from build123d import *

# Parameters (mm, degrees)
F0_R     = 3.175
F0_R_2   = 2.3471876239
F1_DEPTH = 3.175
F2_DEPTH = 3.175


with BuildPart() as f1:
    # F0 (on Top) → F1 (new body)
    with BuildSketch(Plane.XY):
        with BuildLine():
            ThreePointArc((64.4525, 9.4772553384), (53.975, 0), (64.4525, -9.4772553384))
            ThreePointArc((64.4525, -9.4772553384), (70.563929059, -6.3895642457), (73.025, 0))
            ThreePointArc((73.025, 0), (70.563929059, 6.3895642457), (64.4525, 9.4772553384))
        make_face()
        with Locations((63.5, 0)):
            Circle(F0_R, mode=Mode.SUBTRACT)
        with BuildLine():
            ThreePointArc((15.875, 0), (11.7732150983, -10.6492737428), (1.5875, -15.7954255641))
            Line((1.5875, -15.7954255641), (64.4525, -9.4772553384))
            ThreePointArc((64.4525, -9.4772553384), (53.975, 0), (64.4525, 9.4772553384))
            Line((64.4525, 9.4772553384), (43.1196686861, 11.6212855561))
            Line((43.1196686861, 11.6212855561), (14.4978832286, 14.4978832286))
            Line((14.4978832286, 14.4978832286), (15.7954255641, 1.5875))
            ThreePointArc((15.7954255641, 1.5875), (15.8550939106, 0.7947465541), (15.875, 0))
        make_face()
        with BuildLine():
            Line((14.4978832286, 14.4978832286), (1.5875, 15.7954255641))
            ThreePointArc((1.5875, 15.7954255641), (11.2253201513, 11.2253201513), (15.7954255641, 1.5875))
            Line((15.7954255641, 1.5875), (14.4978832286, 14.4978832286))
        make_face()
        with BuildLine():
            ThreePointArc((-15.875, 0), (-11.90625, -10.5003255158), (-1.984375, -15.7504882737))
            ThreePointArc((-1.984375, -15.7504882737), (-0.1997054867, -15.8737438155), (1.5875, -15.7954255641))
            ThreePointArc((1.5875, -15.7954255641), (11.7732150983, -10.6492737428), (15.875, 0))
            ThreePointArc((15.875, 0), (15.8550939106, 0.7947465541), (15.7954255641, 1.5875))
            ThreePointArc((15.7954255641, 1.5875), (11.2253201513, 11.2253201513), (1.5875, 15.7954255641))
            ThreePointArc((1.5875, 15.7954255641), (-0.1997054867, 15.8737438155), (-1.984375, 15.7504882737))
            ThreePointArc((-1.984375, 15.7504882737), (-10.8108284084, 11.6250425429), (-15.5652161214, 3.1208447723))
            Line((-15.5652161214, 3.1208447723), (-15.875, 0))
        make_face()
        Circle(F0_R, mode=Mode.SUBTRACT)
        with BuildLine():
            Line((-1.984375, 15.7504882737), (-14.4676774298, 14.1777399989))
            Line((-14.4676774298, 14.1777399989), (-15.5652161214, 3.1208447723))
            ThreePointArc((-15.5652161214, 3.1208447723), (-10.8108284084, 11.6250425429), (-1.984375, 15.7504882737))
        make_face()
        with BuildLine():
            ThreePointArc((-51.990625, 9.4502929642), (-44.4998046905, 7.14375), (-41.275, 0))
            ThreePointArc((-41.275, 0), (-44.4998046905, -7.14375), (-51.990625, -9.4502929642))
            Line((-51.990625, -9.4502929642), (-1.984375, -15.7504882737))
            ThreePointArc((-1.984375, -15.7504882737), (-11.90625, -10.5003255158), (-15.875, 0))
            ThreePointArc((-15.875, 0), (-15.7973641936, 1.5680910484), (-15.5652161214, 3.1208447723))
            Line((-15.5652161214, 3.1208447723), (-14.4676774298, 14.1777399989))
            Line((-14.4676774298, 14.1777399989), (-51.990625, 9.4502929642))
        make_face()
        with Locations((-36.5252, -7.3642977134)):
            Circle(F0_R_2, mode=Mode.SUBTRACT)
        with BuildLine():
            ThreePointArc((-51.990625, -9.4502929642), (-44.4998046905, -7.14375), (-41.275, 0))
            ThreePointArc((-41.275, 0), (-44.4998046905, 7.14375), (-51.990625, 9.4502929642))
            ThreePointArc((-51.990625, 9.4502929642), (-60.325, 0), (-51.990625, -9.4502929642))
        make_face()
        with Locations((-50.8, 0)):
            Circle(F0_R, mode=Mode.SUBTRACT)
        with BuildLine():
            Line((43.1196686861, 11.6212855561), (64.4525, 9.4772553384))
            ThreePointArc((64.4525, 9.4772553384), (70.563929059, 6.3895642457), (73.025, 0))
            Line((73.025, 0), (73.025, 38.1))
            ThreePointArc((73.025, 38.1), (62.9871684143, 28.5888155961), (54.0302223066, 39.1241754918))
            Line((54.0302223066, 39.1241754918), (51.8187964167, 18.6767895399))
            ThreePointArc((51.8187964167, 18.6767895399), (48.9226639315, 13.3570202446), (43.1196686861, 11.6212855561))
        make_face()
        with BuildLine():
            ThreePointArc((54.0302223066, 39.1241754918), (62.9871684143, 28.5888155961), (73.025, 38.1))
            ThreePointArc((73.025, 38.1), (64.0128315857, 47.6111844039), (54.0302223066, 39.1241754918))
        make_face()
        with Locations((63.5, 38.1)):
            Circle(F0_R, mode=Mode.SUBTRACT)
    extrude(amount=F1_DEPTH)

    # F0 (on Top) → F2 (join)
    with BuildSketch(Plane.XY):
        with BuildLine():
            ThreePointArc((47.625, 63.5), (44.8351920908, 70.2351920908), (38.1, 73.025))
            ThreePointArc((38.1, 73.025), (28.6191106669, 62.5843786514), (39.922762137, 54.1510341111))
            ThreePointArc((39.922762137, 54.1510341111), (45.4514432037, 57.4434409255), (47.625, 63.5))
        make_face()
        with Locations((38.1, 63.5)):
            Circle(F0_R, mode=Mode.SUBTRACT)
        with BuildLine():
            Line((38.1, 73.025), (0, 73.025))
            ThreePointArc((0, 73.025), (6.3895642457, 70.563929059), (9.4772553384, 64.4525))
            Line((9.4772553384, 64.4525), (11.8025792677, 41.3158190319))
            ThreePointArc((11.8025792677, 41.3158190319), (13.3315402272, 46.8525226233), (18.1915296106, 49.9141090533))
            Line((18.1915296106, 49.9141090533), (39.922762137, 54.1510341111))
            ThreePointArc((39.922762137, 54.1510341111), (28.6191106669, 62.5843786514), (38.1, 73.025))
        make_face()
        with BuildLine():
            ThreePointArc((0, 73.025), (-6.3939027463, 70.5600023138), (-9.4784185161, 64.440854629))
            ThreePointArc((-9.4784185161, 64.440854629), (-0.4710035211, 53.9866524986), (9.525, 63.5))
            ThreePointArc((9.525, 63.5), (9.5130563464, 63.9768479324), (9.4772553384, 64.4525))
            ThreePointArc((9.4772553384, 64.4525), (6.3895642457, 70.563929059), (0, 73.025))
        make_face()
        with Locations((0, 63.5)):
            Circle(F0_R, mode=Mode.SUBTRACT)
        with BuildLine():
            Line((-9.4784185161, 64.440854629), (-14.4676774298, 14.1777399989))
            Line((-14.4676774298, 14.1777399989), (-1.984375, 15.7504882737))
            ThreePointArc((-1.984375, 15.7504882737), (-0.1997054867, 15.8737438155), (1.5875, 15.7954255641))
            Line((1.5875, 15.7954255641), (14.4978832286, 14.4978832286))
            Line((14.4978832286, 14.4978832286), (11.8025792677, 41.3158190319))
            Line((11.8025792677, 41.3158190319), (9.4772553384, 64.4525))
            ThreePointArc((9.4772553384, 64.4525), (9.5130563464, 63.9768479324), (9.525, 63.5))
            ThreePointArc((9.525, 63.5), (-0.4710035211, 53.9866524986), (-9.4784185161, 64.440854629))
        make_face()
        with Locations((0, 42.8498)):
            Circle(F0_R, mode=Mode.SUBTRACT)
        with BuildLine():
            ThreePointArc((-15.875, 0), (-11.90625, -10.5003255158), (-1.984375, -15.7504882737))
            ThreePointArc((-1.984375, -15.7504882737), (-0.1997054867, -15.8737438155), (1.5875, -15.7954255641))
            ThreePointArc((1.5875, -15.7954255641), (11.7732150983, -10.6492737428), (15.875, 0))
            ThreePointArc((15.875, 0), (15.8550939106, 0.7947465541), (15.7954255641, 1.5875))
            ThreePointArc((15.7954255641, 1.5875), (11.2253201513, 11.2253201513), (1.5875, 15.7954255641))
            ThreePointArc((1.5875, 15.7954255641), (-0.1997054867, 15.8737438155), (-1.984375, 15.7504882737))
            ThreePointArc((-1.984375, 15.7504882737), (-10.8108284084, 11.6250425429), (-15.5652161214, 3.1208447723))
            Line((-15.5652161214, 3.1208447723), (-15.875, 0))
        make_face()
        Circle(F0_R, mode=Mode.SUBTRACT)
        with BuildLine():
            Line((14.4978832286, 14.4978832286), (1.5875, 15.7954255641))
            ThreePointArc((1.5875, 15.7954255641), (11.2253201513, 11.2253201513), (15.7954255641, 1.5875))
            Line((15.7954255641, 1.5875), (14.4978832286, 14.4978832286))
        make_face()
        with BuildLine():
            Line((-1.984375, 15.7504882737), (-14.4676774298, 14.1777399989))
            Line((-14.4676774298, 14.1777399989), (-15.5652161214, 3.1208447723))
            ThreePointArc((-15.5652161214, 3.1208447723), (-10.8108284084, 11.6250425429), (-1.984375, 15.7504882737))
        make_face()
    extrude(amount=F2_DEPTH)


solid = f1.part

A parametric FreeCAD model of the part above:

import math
import FreeCAD as App
import Part
import Sketcher
from FreeCAD import Vector
Q = App.Units.Quantity

doc = App.newDocument("Part")
params = doc.addObject("Spreadsheet::Sheet", "Params")
for row, (alias, value) in enumerate([
    ("sketch1_diameter", "0.25 in"),
    ("sketch1_height", "1.5 in"),
    ("sketch1_radius", "0.375 in"),
    ("sketch1_radius2", "0.313 in"),
    ("sketch1_radius3", "0.625 in"),
    ("pad1_length", "0.125 in"),
    ("sketch2_diameter", "0.25 in"),
    ("sketch2_width", "1.5 in"),
    ("sketch2_radius", "0.375 in"),
    ("sketch2_radius2", "0.625 in"),
    ("sketch2_radius3", "0.313 in"),
    ("pad2_length", "0.125 in"),
], start=1):
    params.set(f"A{row}", alias)
    params.set(f"B{row}", "=" + value)
    params.setAlias(f"B{row}", alias)

body = doc.addObject("PartDesign::Body", "Body")

# Sketch on XY plane
sketch1 = body.newObject("Sketcher::SketchObject", "Sketch")
sketch1.AttachmentSupport = (doc.getObject("XY_Plane"), [""])
sketch1.MapMode = "FlatFace"
sketch1.addGeometry(Part.ArcOfCircle(Part.Circle(Vector(63.5, 0, 0), Vector(0, 0, 1), 9.5), math.radians(-84), math.radians(0)), False)
sketch1.addGeometry(Part.LineSegment(Vector(73, 0, 0), Vector(73, 38.1, 0)), False)
sketch1.addGeometry(Part.ArcOfCircle(Part.Circle(Vector(63.5, 38.1, 0), Vector(0, 0, 1), 9.5), math.radians(0), math.radians(174)), False)
sketch1.addGeometry(Part.LineSegment(Vector(54, 39.1, 0), Vector(51.8, 18.7, 0)), False)
sketch1.addGeometry(Part.ArcOfCircle(Part.Circle(Vector(43.9, 19.5, 0), Vector(0, 0, 1), 8), math.radians(-96), math.radians(-6)), False)
sketch1.addGeometry(Part.LineSegment(Vector(43.1, 11.6, 0), Vector(14.5, 14.5, 0)), False)
sketch1.addGeometry(Part.LineSegment(Vector(14.5, 14.5, 0), Vector(1.6, 15.8, 0)), False)
sketch1.addGeometry(Part.ArcOfCircle(Part.Circle(Vector(0, 0, 0), Vector(0, 0, 1), 15.9), math.radians(84.26), math.radians(97.18)), False)
sketch1.addGeometry(Part.LineSegment(Vector(-2, 15.8, 0), Vector(-14.5, 14.2, 0)), False)
sketch1.addGeometry(Part.LineSegment(Vector(-14.5, 14.2, 0), Vector(-52, 9.5, 0)), False)
sketch1.addGeometry(Part.ArcOfCircle(Part.Circle(Vector(-50.8, 0, 0), Vector(0, 0, 1), 9.5), math.radians(97), math.radians(263)), False)
sketch1.addGeometry(Part.LineSegment(Vector(-52, -9.5, 0), Vector(-2, -15.8, 0)), False)
sketch1.addGeometry(Part.ArcOfCircle(Part.Circle(Vector(0, 0, 0), Vector(0, 0, 1), 15.9), math.radians(-97.18), math.radians(-84.26)), False)
sketch1.addGeometry(Part.LineSegment(Vector(1.6, -15.8, 0), Vector(64.5, -9.5, 0)), False)
sketch1.addGeometry(Part.Circle(Vector(-36.5, -7.4, 0), Vector(0, 0, 1), 2.3), False)
sketch1.addGeometry(Part.Circle(Vector(-50.8, 0, 0), Vector(0, 0, 1), 3.2), False)
sketch1.addGeometry(Part.LineSegment(Vector(-15.6, 3.1, 0), Vector(-15.9, 0, 0)), False)
sketch1.addGeometry(Part.ArcOfCircle(Part.Circle(Vector(0, 0, 0), Vector(0, 0, 1), 15.9), math.radians(168.66), math.radians(180)), False)
sketch1.addGeometry(Part.Circle(Vector(0, 0, 0), Vector(0, 0, 1), 3.2), False)
sketch1.addGeometry(Part.Circle(Vector(63.5, 0, 0), Vector(0, 0, 1), 3.2), False)
sketch1.addGeometry(Part.Circle(Vector(63.5, 38.1, 0), Vector(0, 0, 1), 3.2), False)
sketch1.addConstraint(Sketcher.Constraint("Tangent", 0, 2, 1, 1))
sketch1.addConstraint(Sketcher.Constraint("Tangent", 1, 2, 2, 1))
sketch1.addConstraint(Sketcher.Constraint("Tangent", 2, 2, 3, 1))
sketch1.addConstraint(Sketcher.Constraint("Tangent", 3, 2, 4, 2))
sketch1.addConstraint(Sketcher.Constraint("Tangent", 4, 1, 5, 1))
sketch1.addConstraint(Sketcher.Constraint("Coincident", 5, 2, 6, 1))
sketch1.addConstraint(Sketcher.Constraint("Tangent", 6, 2, 7, 1))
sketch1.addConstraint(Sketcher.Constraint("Tangent", 7, 2, 8, 1))
sketch1.addConstraint(Sketcher.Constraint("Coincident", 8, 2, 9, 1))
sketch1.addConstraint(Sketcher.Constraint("Tangent", 9, 2, 10, 1))
sketch1.addConstraint(Sketcher.Constraint("Tangent", 10, 2, 11, 1))
sketch1.addConstraint(Sketcher.Constraint("Tangent", 11, 2, 12, 1))
sketch1.addConstraint(Sketcher.Constraint("Tangent", 12, 2, 13, 1))
sketch1.addConstraint(Sketcher.Constraint("Tangent", 13, 2, 0, 1))
sketch1.addConstraint(Sketcher.Constraint("Coincident", 16, 1, 17, 1))
sketch1.addConstraint(Sketcher.Constraint("Coincident", 17, 2, 16, 2))
sketch1.addConstraint(Sketcher.Constraint("Vertical", 1))
sketch1.addConstraint(Sketcher.Constraint("Coincident", 7, 3, -1, 1))
sketch1.addConstraint(Sketcher.Constraint("Coincident", 12, 3, -1, 1))
sketch1.addConstraint(Sketcher.Constraint("Coincident", 17, 3, -1, 1))
sketch1.addConstraint(Sketcher.Constraint("Coincident", 18, 3, -1, 1))
sketch1.addConstraint(Sketcher.Constraint("Coincident", 15, 3, 10, 3))
sketch1.addConstraint(Sketcher.Constraint("Coincident", 19, 3, 0, 3))
sketch1.addConstraint(Sketcher.Constraint("Coincident", 20, 3, 2, 3))
sketch1.addConstraint(Sketcher.Constraint("Equal", 0, 2))
sketch1.addConstraint(Sketcher.Constraint("Equal", 2, 10))
sketch1.addConstraint(Sketcher.Constraint("Equal", 7, 12))
sketch1.addConstraint(Sketcher.Constraint("Equal", 12, 17))
sketch1.addConstraint(Sketcher.Constraint("Equal", 15, 18))
sketch1.addConstraint(Sketcher.Constraint("Equal", 18, 19))
sketch1.addConstraint(Sketcher.Constraint("Equal", 19, 20))
sketch1.addConstraint(Sketcher.Constraint("Symmetric", 9, 2, 10, 2, -1))
sketch1.addConstraint(Sketcher.Constraint("PointOnObject", 0, 3, -1))
sketch1.addConstraint(Sketcher.Constraint("PointOnObject", 17, 2, -1))
sketch1.addConstraint(Sketcher.Constraint("Parallel", 5, 6))
sketch1.addConstraint(Sketcher.Constraint("Vertical", 6, 2, 12, 2))
sketch1.addConstraint(Sketcher.Constraint("Diameter", 15, Q("0.25 in")))
sketch1.addConstraint(Sketcher.Constraint("DistanceY", 1, 1, 1, 2, Q("1.5 in")))
sketch1.addConstraint(Sketcher.Constraint("DistanceX", 10, 3, -1, 1, Q("2 in")))
sketch1.addConstraint(Sketcher.Constraint("Radius", 0, Q("0.375 in")))
sketch1.addConstraint(Sketcher.Constraint("Radius", 4, Q("0.313 in")))
sketch1.addConstraint(Sketcher.Constraint("Radius", 7, Q("0.625 in")))
sketch1.addConstraint(Sketcher.Constraint("DistanceX", -1, 1, 0, 3, Q("2.5 in")))
sketch1.addConstraint(Sketcher.Constraint("DistanceX", 14, 3, -1, 1, Q("1.438 in")))
sketch1.addConstraint(Sketcher.Constraint("Diameter", 14, Q("4.694375 mm")))
sketch1.addConstraint(Sketcher.Constraint("DistanceX", -1, 1, 4, 3, Q("43.914689 mm")))
sketch1.addConstraint(Sketcher.Constraint("DistanceY", -1, 1, 8, 2, Q("14.17774 mm")))
sketch1.addConstraint(Sketcher.Constraint("DistanceY", 14, 3, 9, 2, Q("16.814591 mm")))
sketch1.addConstraint(Sketcher.Constraint("DistanceX", 16, 1, 8, 2, Q("1.097539 mm")))
sketch1.addConstraint(Sketcher.Constraint("Distance", 5, Q("28.765977 mm")))
sketch1.setExpression("Constraints[36]", "Params.sketch1_diameter")
sketch1.setExpression("Constraints[37]", "Params.sketch1_height")
sketch1.setExpression("Constraints[39]", "Params.sketch1_radius")
sketch1.setExpression("Constraints[40]", "Params.sketch1_radius2")
sketch1.setExpression("Constraints[41]", "Params.sketch1_radius3")
pad1 = body.newObject("PartDesign::Pad", "Pad")
pad1.Profile = sketch1
pad1.setExpression("Length", "Params.pad1_length")

# Sketch on XY plane
sketch2 = body.newObject("Sketcher::SketchObject", "Sketch001")
sketch2.AttachmentSupport = (doc.getObject("XY_Plane"), [""])
sketch2.MapMode = "FlatFace"
sketch2.addGeometry(Part.ArcOfCircle(Part.Circle(Vector(38.1, 63.5, 0), Vector(0, 0, 1), 9.5), math.radians(0), math.radians(90)), False)
sketch2.addGeometry(Part.LineSegment(Vector(38.1, 73, 0), Vector(0, 73, 0)), False)
sketch2.addGeometry(Part.ArcOfCircle(Part.Circle(Vector(0, 63.5, 0), Vector(0, 0, 1), 9.5), math.radians(90), math.radians(174)), False)
sketch2.addGeometry(Part.LineSegment(Vector(-9.5, 64.4, 0), Vector(-15.6, 3.1, 0)), False)
sketch2.addGeometry(Part.LineSegment(Vector(-15.6, 3.1, 0), Vector(-15.9, 0, 0)), False)
sketch2.addGeometry(Part.ArcOfCircle(Part.Circle(Vector(0, 0, 0), Vector(0, 0, 1), 15.9), math.radians(180), math.radians(263)), False)
sketch2.addGeometry(Part.ArcOfCircle(Part.Circle(Vector(0, 0, 0), Vector(0, 0, 1), 15.9), math.radians(-97.18), math.radians(-84.26)), False)
sketch2.addGeometry(Part.ArcOfCircle(Part.Circle(Vector(0, 0, 0), Vector(0, 0, 1), 15.9), math.radians(-84), math.radians(0)), False)
sketch2.addGeometry(Part.ArcOfCircle(Part.Circle(Vector(0, 0, 0), Vector(0, 0, 1), 15.9), math.radians(0), math.radians(5.74)), False)
sketch2.addGeometry(Part.LineSegment(Vector(15.8, 1.6, 0), Vector(14.5, 14.5, 0)), False)
sketch2.addGeometry(Part.LineSegment(Vector(14.5, 14.5, 0), Vector(11.8, 41.3, 0)), False)
sketch2.addGeometry(Part.ArcOfCircle(Part.Circle(Vector(19.7, 42.1, 0), Vector(0, 0, 1), 8), math.radians(101), math.radians(186)), False)
sketch2.addGeometry(Part.LineSegment(Vector(18.2, 49.9, 0), Vector(39.9, 54.2, 0)), False)
sketch2.addGeometry(Part.ArcOfCircle(Part.Circle(Vector(38.1, 63.5, 0), Vector(0, 0, 1), 9.5), math.radians(-79), math.radians(0)), False)
sketch2.addGeometry(Part.Circle(Vector(0, 0, 0), Vector(0, 0, 1), 3.2), False)
sketch2.addGeometry(Part.Circle(Vector(0, 42.8, 0), Vector(0, 0, 1), 3.2), False)
sketch2.addGeometry(Part.Circle(Vector(0, 63.5, 0), Vector(0, 0, 1), 3.2), False)
sketch2.addGeometry(Part.Circle(Vector(38.1, 63.5, 0), Vector(0, 0, 1), 3.2), False)
sketch2.addConstraint(Sketcher.Constraint("Tangent", 0, 2, 1, 1))
sketch2.addConstraint(Sketcher.Constraint("Tangent", 1, 2, 2, 1))
sketch2.addConstraint(Sketcher.Constraint("Tangent", 2, 2, 3, 1))
sketch2.addConstraint(Sketcher.Constraint("Coincident", 3, 2, 4, 1))
sketch2.addConstraint(Sketcher.Constraint("Coincident", 4, 2, 5, 1))
sketch2.addConstraint(Sketcher.Constraint("Tangent", 5, 2, 6, 1))
sketch2.addConstraint(Sketcher.Constraint("Tangent", 6, 2, 7, 1))
sketch2.addConstraint(Sketcher.Constraint("Tangent", 7, 2, 8, 1))
sketch2.addConstraint(Sketcher.Constraint("Tangent", 8, 2, 9, 1))
sketch2.addConstraint(Sketcher.Constraint("Coincident", 9, 2, 10, 1))
sketch2.addConstraint(Sketcher.Constraint("Tangent", 10, 2, 11, 2))
sketch2.addConstraint(Sketcher.Constraint("Tangent", 11, 1, 12, 1))
sketch2.addConstraint(Sketcher.Constraint("Tangent", 12, 2, 13, 1))
sketch2.addConstraint(Sketcher.Constraint("Tangent", 13, 2, 0, 1))
sketch2.addConstraint(Sketcher.Constraint("Horizontal", 1))
sketch2.addConstraint(Sketcher.Constraint("Coincident", 5, 3, -1, 1))
sketch2.addConstraint(Sketcher.Constraint("Coincident", 7, 3, -1, 1))
sketch2.addConstraint(Sketcher.Constraint("Coincident", 14, 3, -1, 1))
sketch2.addConstraint(Sketcher.Constraint("Coincident", 16, 3, 2, 3))
sketch2.addConstraint(Sketcher.Constraint("Coincident", 17, 3, 0, 3))
sketch2.addConstraint(Sketcher.Constraint("Equal", 0, 2))
sketch2.addConstraint(Sketcher.Constraint("Equal", 7, 8))
sketch2.addConstraint(Sketcher.Constraint("Equal", 2, 13))
sketch2.addConstraint(Sketcher.Constraint("Equal", 14, 15))
sketch2.addConstraint(Sketcher.Constraint("Equal", 15, 16))
sketch2.addConstraint(Sketcher.Constraint("Equal", 16, 17))
sketch2.addConstraint(Sketcher.Constraint("PointOnObject", 2, 3, -2))
sketch2.addConstraint(Sketcher.Constraint("PointOnObject", 15, 3, -2))
sketch2.addConstraint(Sketcher.Constraint("PointOnObject", 4, 2, -1))
sketch2.addConstraint(Sketcher.Constraint("PointOnObject", 7, 2, -1))
sketch2.addConstraint(Sketcher.Constraint("Parallel", 3, 4))
sketch2.addConstraint(Sketcher.Constraint("Parallel", 9, 10))
sketch2.addConstraint(Sketcher.Constraint("Horizontal", 17, 3, 13, 2))
sketch2.addConstraint(Sketcher.Constraint("Diameter", 14, Q("0.25 in")))
sketch2.addConstraint(Sketcher.Constraint("DistanceX", 1, 2, 1, 1, Q("1.5 in")))
sketch2.addConstraint(Sketcher.Constraint("Radius", 0, Q("0.375 in")))
sketch2.addConstraint(Sketcher.Constraint("Radius", 5, Q("0.625 in")))
sketch2.addConstraint(Sketcher.Constraint("Radius", 11, Q("0.313 in")))
sketch2.addConstraint(Sketcher.Constraint("DistanceY", -1, 1, 0, 3, Q("2.5 in")))
sketch2.addConstraint(Sketcher.Constraint("DistanceY", -1, 1, 15, 3, Q("1.687 in")))
sketch2.addConstraint(Sketcher.Constraint("DistanceX", 5, 2, -1, 1, Q("0.078125 in")))
sketch2.addConstraint(Sketcher.Constraint("DistanceX", -1, 1, 6, 2, Q("0.0625 in")))
sketch2.addConstraint(Sketcher.Constraint("DistanceY", -1, 1, 8, 2, Q("0.0625 in")))
sketch2.addConstraint(Sketcher.Constraint("DistanceX", 11, 1, 11, 3, Q("1.521399 mm")))
sketch2.addConstraint(Sketcher.Constraint("Distance", 10, Q("26.95304 mm")))
sketch2.addConstraint(Sketcher.Constraint("Distance", 3, Q("61.621366 mm")))
sketch2.setExpression("Constraints[33]", "Params.sketch2_diameter")
sketch2.setExpression("Constraints[34]", "Params.sketch2_width")
sketch2.setExpression("Constraints[35]", "Params.sketch2_radius")
sketch2.setExpression("Constraints[36]", "Params.sketch2_radius2")
sketch2.setExpression("Constraints[37]", "Params.sketch2_radius3")
pad2 = body.newObject("PartDesign::Pad", "Pad001")
pad2.Profile = sketch2
pad2.setExpression("Length", "Params.pad2_length")

doc.recompute()
